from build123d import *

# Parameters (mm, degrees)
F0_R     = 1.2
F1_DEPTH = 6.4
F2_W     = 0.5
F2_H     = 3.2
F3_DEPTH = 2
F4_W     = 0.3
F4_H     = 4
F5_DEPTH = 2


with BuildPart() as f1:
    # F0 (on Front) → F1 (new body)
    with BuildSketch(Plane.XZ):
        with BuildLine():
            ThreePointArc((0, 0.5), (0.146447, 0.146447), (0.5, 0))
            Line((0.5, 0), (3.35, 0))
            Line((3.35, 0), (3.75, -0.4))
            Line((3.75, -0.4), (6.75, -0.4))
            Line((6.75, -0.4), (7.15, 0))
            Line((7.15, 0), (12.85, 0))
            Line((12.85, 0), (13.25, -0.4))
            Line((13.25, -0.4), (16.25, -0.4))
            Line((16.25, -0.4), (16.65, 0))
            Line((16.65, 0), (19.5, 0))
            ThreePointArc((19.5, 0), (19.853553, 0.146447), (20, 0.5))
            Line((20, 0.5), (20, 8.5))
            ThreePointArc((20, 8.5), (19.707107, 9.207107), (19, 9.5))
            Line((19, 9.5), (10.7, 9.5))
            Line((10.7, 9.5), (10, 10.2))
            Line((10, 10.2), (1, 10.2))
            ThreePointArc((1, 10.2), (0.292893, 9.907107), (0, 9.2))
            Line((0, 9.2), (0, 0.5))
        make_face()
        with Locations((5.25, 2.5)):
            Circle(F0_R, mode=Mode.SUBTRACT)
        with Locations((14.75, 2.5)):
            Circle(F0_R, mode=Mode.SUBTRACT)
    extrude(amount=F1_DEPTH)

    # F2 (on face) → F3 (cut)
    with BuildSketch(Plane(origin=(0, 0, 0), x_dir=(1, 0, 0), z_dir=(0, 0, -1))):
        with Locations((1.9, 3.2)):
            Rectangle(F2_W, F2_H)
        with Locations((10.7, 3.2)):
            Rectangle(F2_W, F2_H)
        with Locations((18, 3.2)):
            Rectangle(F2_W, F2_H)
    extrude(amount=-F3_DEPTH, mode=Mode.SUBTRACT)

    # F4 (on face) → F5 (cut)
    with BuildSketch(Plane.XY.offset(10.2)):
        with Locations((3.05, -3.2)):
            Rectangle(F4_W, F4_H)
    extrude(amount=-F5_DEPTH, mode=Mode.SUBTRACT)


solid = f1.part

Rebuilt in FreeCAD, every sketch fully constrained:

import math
import FreeCAD as App
import Part
import Sketcher
from FreeCAD import Vector
Q = App.Units.Quantity

doc = App.newDocument("Part")
body = doc.addObject("PartDesign::Body", "Body")

# Sketch on XZ plane
sketch1 = body.newObject("Sketcher::SketchObject", "Sketch")
sketch1.AttachmentSupport = (doc.getObject("XZ_Plane"), [""])
sketch1.MapMode = "FlatFace"
sketch1.addGeometry([
    Part.ArcOfCircle(Part.Circle(Vector(0.5, 0.5, 0), Vector(0, 0, 1), 0.5), math.radians(-180), math.radians(-90)),  # 0
    Part.LineSegment(Vector(0.5, 0, 0), Vector(3.4, 0, 0)),  # 1
    Part.LineSegment(Vector(3.4, 0, 0), Vector(3.8, -0.4, 0)),  # 2
    Part.LineSegment(Vector(3.8, -0.4, 0), Vector(6.8, -0.4, 0)),  # 3
    Part.LineSegment(Vector(6.8, -0.4, 0), Vector(7.2, 0, 0)),  # 4
    Part.LineSegment(Vector(7.2, 0, 0), Vector(12.8, 0, 0)),  # 5
    Part.LineSegment(Vector(12.8, 0, 0), Vector(13.2, -0.4, 0)),  # 6
    Part.LineSegment(Vector(13.2, -0.4, 0), Vector(16.2, -0.4, 0)),  # 7
    Part.LineSegment(Vector(16.2, -0.4, 0), Vector(16.6, 0, 0)),  # 8
    Part.LineSegment(Vector(16.6, 0, 0), Vector(19.5, 0, 0)),  # 9
    Part.ArcOfCircle(Part.Circle(Vector(19.5, 0.5, 0), Vector(0, 0, 1), 0.5), math.radians(-90), math.radians(0)),  # 10
    Part.LineSegment(Vector(20, 0.5, 0), Vector(20, 8.5, 0)),  # 11
    Part.ArcOfCircle(Part.Circle(Vector(19, 8.5, 0), Vector(0, 0, 1), 1), math.radians(0), math.radians(90)),  # 12
    Part.LineSegment(Vector(19, 9.5, 0), Vector(10.7, 9.5, 0)),  # 13
    Part.LineSegment(Vector(10.7, 9.5, 0), Vector(10, 10.2, 0)),  # 14
    Part.LineSegment(Vector(10, 10.2, 0), Vector(1, 10.2, 0)),  # 15
    Part.ArcOfCircle(Part.Circle(Vector(1, 9.2, 0), Vector(0, 0, 1), 1), math.radians(90), math.radians(180)),  # 16
    Part.LineSegment(Vector(0, 9.2, 0), Vector(0, 0.5, 0)),  # 17
    Part.Circle(Vector(5.2, 2.5, 0), Vector(0, 0, 1), 1.2),  # 18
    Part.Circle(Vector(14.8, 2.5, 0), Vector(0, 0, 1), 1.2),  # 19
], False)
sketch1.addConstraint([
    Sketcher.Constraint("Coincident", 0, 2, 1, 1),
    Sketcher.Constraint("Coincident", 1, 2, 2, 1),
    Sketcher.Constraint("Coincident", 2, 2, 3, 1),
    Sketcher.Constraint("Coincident", 3, 2, 4, 1),
    Sketcher.Constraint("Coincident", 4, 2, 5, 1),
    Sketcher.Constraint("Coincident", 5, 2, 6, 1),
    Sketcher.Constraint("Coincident", 6, 2, 7, 1),
    Sketcher.Constraint("Coincident", 7, 2, 8, 1),
    Sketcher.Constraint("Coincident", 8, 2, 9, 1),
    Sketcher.Constraint("Coincident", 9, 2, 10, 1),
    Sketcher.Constraint("Coincident", 10, 2, 11, 1),
    Sketcher.Constraint("Tangent", 11, 2, 12, 1),
    Sketcher.Constraint("Tangent", 12, 2, 13, 1),
    Sketcher.Constraint("Coincident", 13, 2, 14, 1),
    Sketcher.Constraint("Coincident", 14, 2, 15, 1),
    Sketcher.Constraint("Tangent", 15, 2, 16, 1),
    Sketcher.Constraint("Tangent", 16, 2, 17, 1),
    Sketcher.Constraint("Coincident", 17, 2, 0, 1),
    Sketcher.Constraint("Horizontal", 1),
    Sketcher.Constraint("Horizontal", 3),
    Sketcher.Constraint("Horizontal", 5),
    Sketcher.Constraint("Horizontal", 7),
    Sketcher.Constraint("Horizontal", 9),
    Sketcher.Constraint("Vertical", 11),
    Sketcher.Constraint("Horizontal", 13),
    Sketcher.Constraint("Horizontal", 15),
    Sketcher.Constraint("Vertical", 17),
    Sketcher.Constraint("Equal", 0, 10),
    Sketcher.Constraint("Equal", 12, 16),
    Sketcher.Constraint("Equal", 18, 19),
    Sketcher.Constraint("PointOnObject", 0, 2, -1),
    Sketcher.Constraint("PointOnObject", 4, 2, -1),
    Sketcher.Constraint("PointOnObject", 8, 2, -1),
    Sketcher.Constraint("PointOnObject", 16, 2, -2),
    Sketcher.Constraint("Perpendicular", 2, 4),
    Sketcher.Constraint("Perpendicular", 4, 6),
    Sketcher.Constraint("Perpendicular", 6, 8),
    Sketcher.Constraint("Perpendicular", 8, 14),
    Sketcher.Constraint("Horizontal", 18, 3, 19, 3),
    Sketcher.Constraint("Horizontal", 3, 2, 6, 2),
    Sketcher.Constraint("Horizontal", 0, 3, 10, 2),
    Sketcher.Constraint("Horizontal", 10, 2, 17, 2),
    Sketcher.Constraint("Vertical", 10, 3, 9, 2),
    Sketcher.Constraint("Equal", 3, 7),
    Sketcher.Constraint("Equal", 1, 9),
    Sketcher.Constraint("Equal", 2, 4),
    Sketcher.Constraint("Radius", 12, Q("0.999999 mm")),
    Sketcher.Constraint("Diameter", 18, Q("2.4 mm")),
    Sketcher.Constraint("Radius", 0, Q("0.500001 mm")),
    Sketcher.Constraint("DistanceX", 3, 1, 3, 2, Q("3 mm")),
    Sketcher.Constraint("DistanceX", 15, 2, 15, 1, Q("9 mm")),
    Sketcher.Constraint("DistanceY", 11, 1, 11, 2, Q("8 mm")),
    Sketcher.Constraint("DistanceX", 5, 1, 5, 2, Q("5.7 mm")),
    Sketcher.Constraint("DistanceX", 13, 2, 13, 1, Q("8.3 mm")),
    Sketcher.Constraint("DistanceY", 17, 2, 17, 1, Q("8.7 mm")),
    Sketcher.Constraint("DistanceY", 0, 3, 18, 3, Q("1.999999 mm")),
    Sketcher.Constraint("DistanceX", 0, 2, 10, 3, Q("18.999999 mm")),
    Sketcher.Constraint("DistanceX", 1, 1, 1, 2, Q("2.85 mm")),
    Sketcher.Constraint("DistanceX", 18, 3, 19, 3, Q("9.5 mm")),
    Sketcher.Constraint("DistanceX", 1, 2, 18, 3, Q("1.9 mm")),
])
pad1 = body.newObject("PartDesign::Pad", "Pad")
pad1.Profile = sketch1
pad1.Length = 6.4

# Sketch on XY plane
sketch2 = body.newObject("Sketcher::SketchObject", "Sketch001")
sketch2.AttachmentSupport = (doc.getObject("XY_Plane"), [""])
sketch2.MapMode = "FlatFace"
sketch2.addGeometry([
    Part.LineSegment(Vector(1.6, -4.8, 0), Vector(1.6, -1.6, 0)),  # 0
    Part.LineSegment(Vector(1.6, -1.6, 0), Vector(2.1, -1.6, 0)),  # 1
    Part.LineSegment(Vector(2.1, -1.6, 0), Vector(2.1, -4.8, 0)),  # 2
    Part.LineSegment(Vector(2.1, -4.8, 0), Vector(1.6, -4.8, 0)),  # 3
    Part.LineSegment(Vector(10.4, -4.8, 0), Vector(10.4, -1.6, 0)),  # 4
    Part.LineSegment(Vector(10.4, -1.6, 0), Vector(10.9, -1.6, 0)),  # 5
    Part.LineSegment(Vector(10.9, -1.6, 0), Vector(10.9, -4.8, 0)),  # 6
    Part.LineSegment(Vector(10.9, -4.8, 0), Vector(10.4, -4.8, 0)),  # 7
    Part.LineSegment(Vector(17.8, -4.8, 0), Vector(17.8, -1.6, 0)),  # 8
    Part.LineSegment(Vector(17.8, -1.6, 0), Vector(18.2, -1.6, 0)),  # 9
    Part.LineSegment(Vector(18.2, -1.6, 0), Vector(18.2, -4.8, 0)),  # 10
    Part.LineSegment(Vector(18.2, -4.8, 0), Vector(17.8, -4.8, 0)),  # 11
], False)
sketch2.addConstraint([
    Sketcher.Constraint("Coincident", 0, 2, 1, 1),
    Sketcher.Constraint("Coincident", 1, 2, 2, 1),
    Sketcher.Constraint("Coincident", 2, 2, 3, 1),
    Sketcher.Constraint("Coincident", 3, 2, 0, 1),
    Sketcher.Constraint("Coincident", 4, 2, 5, 1),
    Sketcher.Constraint("Coincident", 5, 2, 6, 1),
    Sketcher.Constraint("Coincident", 6, 2, 7, 1),
    Sketcher.Constraint("Coincident", 7, 2, 4, 1),
    Sketcher.Constraint("Coincident", 8, 2, 9, 1),
    Sketcher.Constraint("Coincident", 9, 2, 10, 1),
    Sketcher.Constraint("Coincident", 10, 2, 11, 1),
    Sketcher.Constraint("Coincident", 11, 2, 8, 1),
    Sketcher.Constraint("Vertical", 0),
    Sketcher.Constraint("Horizontal", 1),
    Sketcher.Constraint("Vertical", 2),
    Sketcher.Constraint("Horizontal", 3),
    Sketcher.Constraint("Vertical", 4),
    Sketcher.Constraint("Horizontal", 5),
    Sketcher.Constraint("Vertical", 6),
    Sketcher.Constraint("Horizontal", 7),
    Sketcher.Constraint("Vertical", 8),
    Sketcher.Constraint("Horizontal", 9),
    Sketcher.Constraint("Vertical", 10),
    Sketcher.Constraint("Horizontal", 11),
    Sketcher.Constraint("Horizontal", 1, 2, 4, 2),
    Sketcher.Constraint("Horizontal", 3, 2, 6, 2),
    Sketcher.Constraint("Horizontal", 5, 2, 8, 2),
    Sketcher.Constraint("Horizontal", 7, 2, 10, 2),
    Sketcher.Constraint("Equal", 3, 5),
    Sketcher.Constraint("Equal", 7, 9),
    Sketcher.Constraint("DistanceX", 1, 1, 1, 2, Q("0.5 mm")),
    Sketcher.Constraint("DistanceY", 0, 1, 0, 2, Q("3.2 mm")),
    Sketcher.Constraint("DistanceY", 0, 2, -1, 1, Q("1.6 mm")),
    Sketcher.Constraint("DistanceX", 1, 2, 4, 2, Q("8.3 mm")),
    Sketcher.Constraint("DistanceX", 5, 2, 8, 2, Q("6.8 mm")),
    Sketcher.Constraint("DistanceX", -1, 1, 0, 2, Q("1.65 mm")),
])
pocket1 = body.newObject("PartDesign::Pocket", "Pocket")
pocket1.Profile = sketch2
pocket1.Length = 2
pocket1.Reversed = True

# Sketch on XY plane
sketch3 = body.newObject("Sketcher::SketchObject", "Sketch002")
sketch3.AttachmentSupport = (doc.getObject("XY_Plane"), [""])
sketch3.MapMode = "FlatFace"
sketch3.AttachmentOffset = App.Placement(Vector(0, 0, 10.2), App.Rotation())
sketch3.addGeometry([
    Part.LineSegment(Vector(2.9, -1.2, 0), Vector(2.9, -5.2, 0)),
    Part.LineSegment(Vector(2.9, -5.2, 0), Vector(3.2, -5.2, 0)),
    Part.LineSegment(Vector(3.2, -5.2, 0), Vector(3.2, -1.2, 0)),
    Part.LineSegment(Vector(3.2, -1.2, 0), Vector(2.9, -1.2, 0)),
], False)
sketch3.addConstraint([
    Sketcher.Constraint("Coincident", 0, 2, 1, 1),
    Sketcher.Constraint("Coincident", 1, 2, 2, 1),
    Sketcher.Constraint("Coincident", 2, 2, 3, 1),
    Sketcher.Constraint("Coincident", 3, 2, 0, 1),
    Sketcher.Constraint("Vertical", 0),
    Sketcher.Constraint("Horizontal", 1),
    Sketcher.Constraint("Vertical", 2),
    Sketcher.Constraint("Horizontal", 3),
    Sketcher.Constraint("DistanceY", 0, 2, 0, 1, Q("4 mm")),
    Sketcher.Constraint("DistanceX", 1, 1, 1, 2, Q("0.3 mm")),
    Sketcher.Constraint("DistanceX", -1, 1, 0, 2, Q("2.9 mm")),
    Sketcher.Constraint("DistanceY", 0, 2, -1, 1, Q("5.2 mm")),
])
pocket2 = body.newObject("PartDesign::Pocket", "Pocket001")
pocket2.Profile = sketch3
pocket2.Length = 2

doc.recompute()
